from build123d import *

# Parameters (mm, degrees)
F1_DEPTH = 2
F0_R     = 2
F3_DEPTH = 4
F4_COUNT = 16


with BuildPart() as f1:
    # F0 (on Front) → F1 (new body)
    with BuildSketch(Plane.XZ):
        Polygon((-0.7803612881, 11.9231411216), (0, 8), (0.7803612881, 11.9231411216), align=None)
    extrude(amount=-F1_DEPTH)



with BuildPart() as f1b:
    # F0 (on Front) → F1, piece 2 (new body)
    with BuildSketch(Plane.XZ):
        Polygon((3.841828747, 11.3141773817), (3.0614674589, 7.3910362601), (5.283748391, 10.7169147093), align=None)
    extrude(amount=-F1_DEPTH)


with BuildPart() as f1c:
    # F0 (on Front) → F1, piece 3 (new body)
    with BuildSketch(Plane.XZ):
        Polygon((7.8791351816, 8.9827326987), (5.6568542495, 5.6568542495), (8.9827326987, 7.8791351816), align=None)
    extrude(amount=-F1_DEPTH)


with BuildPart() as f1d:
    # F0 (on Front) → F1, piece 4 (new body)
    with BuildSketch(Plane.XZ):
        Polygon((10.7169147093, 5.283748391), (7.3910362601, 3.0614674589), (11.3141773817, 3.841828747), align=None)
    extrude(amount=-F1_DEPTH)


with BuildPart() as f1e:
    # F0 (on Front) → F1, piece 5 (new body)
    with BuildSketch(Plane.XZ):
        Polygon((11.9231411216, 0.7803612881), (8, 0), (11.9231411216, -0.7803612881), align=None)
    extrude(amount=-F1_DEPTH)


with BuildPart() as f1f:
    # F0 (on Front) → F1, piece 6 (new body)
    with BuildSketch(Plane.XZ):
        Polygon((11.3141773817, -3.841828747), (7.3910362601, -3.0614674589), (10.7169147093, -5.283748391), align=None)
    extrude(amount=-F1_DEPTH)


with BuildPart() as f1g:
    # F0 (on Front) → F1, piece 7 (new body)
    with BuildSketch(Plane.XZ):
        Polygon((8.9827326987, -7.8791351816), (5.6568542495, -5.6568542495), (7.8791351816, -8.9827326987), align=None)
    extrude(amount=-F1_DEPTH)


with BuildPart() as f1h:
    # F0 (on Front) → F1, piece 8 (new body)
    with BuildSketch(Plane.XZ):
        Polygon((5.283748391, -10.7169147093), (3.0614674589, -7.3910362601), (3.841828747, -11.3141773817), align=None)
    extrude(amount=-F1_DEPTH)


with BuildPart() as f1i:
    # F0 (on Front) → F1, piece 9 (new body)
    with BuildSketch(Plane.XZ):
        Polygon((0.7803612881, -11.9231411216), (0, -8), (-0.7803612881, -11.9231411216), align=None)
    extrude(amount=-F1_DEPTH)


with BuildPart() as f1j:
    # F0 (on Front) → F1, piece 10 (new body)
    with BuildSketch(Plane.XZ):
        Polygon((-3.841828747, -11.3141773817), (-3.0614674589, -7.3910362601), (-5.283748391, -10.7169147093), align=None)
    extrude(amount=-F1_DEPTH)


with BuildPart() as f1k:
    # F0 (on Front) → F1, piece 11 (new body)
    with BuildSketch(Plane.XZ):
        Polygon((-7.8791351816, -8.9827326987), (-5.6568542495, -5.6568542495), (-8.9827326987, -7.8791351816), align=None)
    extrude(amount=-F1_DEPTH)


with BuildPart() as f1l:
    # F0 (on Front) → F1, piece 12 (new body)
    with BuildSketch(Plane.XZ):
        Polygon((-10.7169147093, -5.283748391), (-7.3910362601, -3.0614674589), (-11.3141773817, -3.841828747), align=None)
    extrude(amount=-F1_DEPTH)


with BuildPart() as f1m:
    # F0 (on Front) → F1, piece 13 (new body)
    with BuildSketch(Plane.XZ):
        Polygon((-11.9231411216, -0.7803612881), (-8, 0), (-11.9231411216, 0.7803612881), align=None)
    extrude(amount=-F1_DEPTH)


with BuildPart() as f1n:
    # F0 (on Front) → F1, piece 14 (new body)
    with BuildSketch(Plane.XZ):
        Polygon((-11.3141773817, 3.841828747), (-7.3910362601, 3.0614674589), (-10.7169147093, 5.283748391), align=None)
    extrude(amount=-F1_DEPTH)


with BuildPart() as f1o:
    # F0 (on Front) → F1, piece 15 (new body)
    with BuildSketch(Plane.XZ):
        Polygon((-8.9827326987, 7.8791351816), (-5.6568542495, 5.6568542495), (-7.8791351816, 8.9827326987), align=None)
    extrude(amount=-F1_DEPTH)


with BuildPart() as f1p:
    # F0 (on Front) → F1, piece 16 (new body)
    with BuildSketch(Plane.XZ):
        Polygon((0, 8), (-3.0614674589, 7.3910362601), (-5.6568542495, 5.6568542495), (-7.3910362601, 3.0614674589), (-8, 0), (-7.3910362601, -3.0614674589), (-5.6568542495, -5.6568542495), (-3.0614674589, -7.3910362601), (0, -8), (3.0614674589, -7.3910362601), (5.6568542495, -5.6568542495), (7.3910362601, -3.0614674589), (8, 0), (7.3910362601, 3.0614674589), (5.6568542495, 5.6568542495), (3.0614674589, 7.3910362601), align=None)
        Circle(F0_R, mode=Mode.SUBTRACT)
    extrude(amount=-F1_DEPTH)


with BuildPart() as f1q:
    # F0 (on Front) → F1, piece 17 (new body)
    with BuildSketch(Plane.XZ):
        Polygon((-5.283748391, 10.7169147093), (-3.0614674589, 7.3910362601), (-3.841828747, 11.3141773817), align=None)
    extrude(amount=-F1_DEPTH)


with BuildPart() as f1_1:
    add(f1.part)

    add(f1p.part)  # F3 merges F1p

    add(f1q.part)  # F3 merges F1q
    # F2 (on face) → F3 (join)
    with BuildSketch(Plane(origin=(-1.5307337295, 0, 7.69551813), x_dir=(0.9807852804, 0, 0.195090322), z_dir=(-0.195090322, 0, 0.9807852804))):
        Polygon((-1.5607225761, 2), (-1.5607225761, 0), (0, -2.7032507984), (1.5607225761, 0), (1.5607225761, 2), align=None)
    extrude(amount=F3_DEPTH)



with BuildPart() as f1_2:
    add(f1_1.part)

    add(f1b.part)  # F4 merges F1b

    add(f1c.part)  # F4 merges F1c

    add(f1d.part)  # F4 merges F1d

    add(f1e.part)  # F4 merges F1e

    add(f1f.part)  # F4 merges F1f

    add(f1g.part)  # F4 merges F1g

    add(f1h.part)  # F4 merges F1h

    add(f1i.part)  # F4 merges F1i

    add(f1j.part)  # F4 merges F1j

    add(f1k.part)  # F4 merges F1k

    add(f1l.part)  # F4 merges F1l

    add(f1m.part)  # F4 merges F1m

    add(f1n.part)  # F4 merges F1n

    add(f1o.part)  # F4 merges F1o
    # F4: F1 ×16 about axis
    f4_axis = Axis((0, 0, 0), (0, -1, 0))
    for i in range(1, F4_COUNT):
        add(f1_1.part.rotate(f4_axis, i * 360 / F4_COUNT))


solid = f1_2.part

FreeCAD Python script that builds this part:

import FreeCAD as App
import Part
import Sketcher
Q = App.Units.Quantity


def add_polygon(sketch, points):
    """Adds a closed chain of lines whose ends are joined by coincident constraints."""
    first, n = sketch.GeometryCount, len(points)
    for a, b in zip(points, points[1:] + points[:1]):
        sketch.addGeometry(Part.LineSegment(App.Vector(*a, 0), App.Vector(*b, 0)), False)
    for i in range(n):
        sketch.addConstraint(Sketcher.Constraint("Coincident", first + i, 2, first + (i + 1) % n, 1))

doc = App.newDocument("Part")
body = doc.addObject("PartDesign::Body", "Body")

sketch1 = body.newObject("Sketcher::SketchObject", "Sketch")
sketch1.AttachmentSupport = (doc.getObject("XZ_Plane"), [""])
sketch1.MapMode = "FlatFace"
add_polygon(sketch1, [(-0.780361, 11.923141), (0, 8), (0.780361, 11.923141)])
sketch1.addConstraint([
    Sketcher.Constraint("Horizontal", 2),
    Sketcher.Constraint("PointOnObject", 0, 2, -2),
    Sketcher.Constraint("Equal", 0, 1),
    Sketcher.Constraint("Distance", 0, Q("4 mm")),
    Sketcher.Constraint("DistanceY", -1, 1, 0, 2, Q("8 mm")),
    Sketcher.Constraint("Angle", 0, Q("-78.75 deg")),
])
pad1 = body.newObject("PartDesign::Pad", "Pad")
pad1.Profile = sketch1
pad1.Length = 2
pad1.Reversed = True
body2 = doc.addObject("PartDesign::Body", "Body001")

sketch2 = body2.newObject("Sketcher::SketchObject", "Sketch001")
sketch2.AttachmentSupport = (doc.getObject("XZ_Plane001"), [""])
sketch2.MapMode = "FlatFace"
add_polygon(sketch2, [(3.841829, 11.314177), (3.061467, 7.391036), (5.283748, 10.716915)])
sketch2.addConstraint([
    Sketcher.Constraint("Equal", 0, 1),
    Sketcher.Constraint("Distance", 0, Q("4 mm")),
    Sketcher.Constraint("Angle", 2, Q("157.5 deg")),
    Sketcher.Constraint("Angle", 0, Q("-101.25 deg")),
    Sketcher.Constraint("DistanceX", -1, 1, 1, 2, Q("5.283748 mm")),
    Sketcher.Constraint("DistanceY", -1, 1, 0, 2, Q("7.391036 mm")),
])
pad2 = body2.newObject("PartDesign::Pad", "Pad001")
pad2.Profile = sketch2
pad2.Length = 2
pad2.Reversed = True
body3 = doc.addObject("PartDesign::Body", "Body002")

sketch3 = body3.newObject("Sketcher::SketchObject", "Sketch002")
sketch3.AttachmentSupport = (doc.getObject("XZ_Plane002"), [""])
sketch3.MapMode = "FlatFace"
add_polygon(sketch3, [(7.879135, 8.982733), (5.656854, 5.656854), (8.982733, 7.879135)])
sketch3.addConstraint([
    Sketcher.Constraint("Equal", 0, 1),
    Sketcher.Constraint("Angle", 2, Q("135 deg")),
    Sketcher.Constraint("Distance", 0, Q("4 mm")),
    Sketcher.Constraint("Angle", 0, Q("-123.75 deg")),
    Sketcher.Constraint("DistanceX", -1, 1, 0, 2, Q("5.656854 mm")),
    Sketcher.Constraint("DistanceY", -1, 1, 0, 2, Q("5.656854 mm")),
])
pad3 = body3.newObject("PartDesign::Pad", "Pad002")
pad3.Profile = sketch3
pad3.Length = 2
pad3.Reversed = True
body4 = doc.addObject("PartDesign::Body", "Body003")

sketch4 = body4.newObject("Sketcher::SketchObject", "Sketch003")
sketch4.AttachmentSupport = (doc.getObject("XZ_Plane003"), [""])
sketch4.MapMode = "FlatFace"
add_polygon(sketch4, [(10.716915, 5.283748), (7.391036, 3.061467), (11.314177, 3.841829)])
sketch4.addConstraint([
    Sketcher.Constraint("Equal", 0, 1),
    Sketcher.Constraint("Distance", 0, Q("4 mm")),
    Sketcher.Constraint("Angle", 2, Q("112.5 deg")),
    Sketcher.Constraint("Angle", 0, Q("-146.25 deg")),
    Sketcher.Constraint("DistanceY", -1, 1, 1, 2, Q("3.841829 mm")),
    Sketcher.Constraint("DistanceX", -1, 1, 0, 2, Q("7.391036 mm")),
])
pad4 = body4.newObject("PartDesign::Pad", "Pad003")
pad4.Profile = sketch4
pad4.Length = 2
pad4.Reversed = True
body5 = doc.addObject("PartDesign::Body", "Body004")

sketch5 = body5.newObject("Sketcher::SketchObject", "Sketch004")
sketch5.AttachmentSupport = (doc.getObject("XZ_Plane004"), [""])
sketch5.MapMode = "FlatFace"
add_polygon(sketch5, [(11.923141, 0.780361), (8, 0), (11.923141, -0.780361)])
sketch5.addConstraint([
    Sketcher.Constraint("Vertical", 2),
    Sketcher.Constraint("PointOnObject", 0, 2, -1),
    Sketcher.Constraint("Equal", 0, 1),
    Sketcher.Constraint("Distance", 0, Q("4 mm")),
    Sketcher.Constraint("DistanceX", -1, 1, 0, 2, Q("8 mm")),
    Sketcher.Constraint("Angle", 0, Q("-168.75 deg")),
])
pad5 = body5.newObject("PartDesign::Pad", "Pad004")
pad5.Profile = sketch5
pad5.Length = 2
pad5.Reversed = True
body6 = doc.addObject("PartDesign::Body", "Body005")

sketch6 = body6.newObject("Sketcher::SketchObject", "Sketch005")
sketch6.AttachmentSupport = (doc.getObject("XZ_Plane005"), [""])
sketch6.MapMode = "FlatFace"
add_polygon(sketch6, [(11.314177, -3.841829), (7.391036, -3.061467), (10.716915, -5.283748)])
sketch6.addConstraint([
    Sketcher.Constraint("Equal", 0, 1),
    Sketcher.Constraint("Distance", 0, Q("4 mm")),
    Sketcher.Constraint("Angle", 2, Q("67.5 deg")),
    Sketcher.Constraint("Angle", 0, Q("168.75 deg")),
    Sketcher.Constraint("DistanceY", 1, 2, -1, 1, Q("5.283748 mm")),
    Sketcher.Constraint("DistanceX", -1, 1, 0, 2, Q("7.391036 mm")),
])
pad6 = body6.newObject("PartDesign::Pad", "Pad005")
pad6.Profile = sketch6
pad6.Length = 2
pad6.Reversed = True
body7 = doc.addObject("PartDesign::Body", "Body006")

sketch7 = body7.newObject("Sketcher::SketchObject", "Sketch006")
sketch7.AttachmentSupport = (doc.getObject("XZ_Plane006"), [""])
sketch7.MapMode = "FlatFace"
add_polygon(sketch7, [(8.982733, -7.879135), (5.656854, -5.656854), (7.879135, -8.982733)])
sketch7.addConstraint([
    Sketcher.Constraint("Equal", 0, 1),
    Sketcher.Constraint("Angle", 2, Q("45 deg")),
    Sketcher.Constraint("Distance", 0, Q("4 mm")),
    Sketcher.Constraint("Angle", 0, Q("146.25 deg")),
    Sketcher.Constraint("DistanceX", -1, 1, 0, 2, Q("5.656854 mm")),
    Sketcher.Constraint("DistanceY", 0, 2, -1, 1, Q("5.656854 mm")),
])
pad7 = body7.newObject("PartDesign::Pad", "Pad006")
pad7.Profile = sketch7
pad7.Length = 2
pad7.Reversed = True
body8 = doc.addObject("PartDesign::Body", "Body007")

sketch8 = body8.newObject("Sketcher::SketchObject", "Sketch007")
sketch8.AttachmentSupport = (doc.getObject("XZ_Plane007"), [""])
sketch8.MapMode = "FlatFace"
add_polygon(sketch8, [(5.283748, -10.716915), (3.061467, -7.391036), (3.841829, -11.314177)])
sketch8.addConstraint([
    Sketcher.Constraint("Equal", 0, 1),
    Sketcher.Constraint("Distance", 0, Q("4 mm")),
    Sketcher.Constraint("Angle", 2, Q("22.5 deg")),
    Sketcher.Constraint("Angle", 0, Q("123.75 deg")),
    Sketcher.Constraint("DistanceX", -1, 1, 1, 2, Q("3.841829 mm")),
    Sketcher.Constraint("DistanceY", 0, 2, -1, 1, Q("7.391036 mm")),
])
pad8 = body8.newObject("PartDesign::Pad", "Pad007")
pad8.Profile = sketch8
pad8.Length = 2
pad8.Reversed = True
body9 = doc.addObject("PartDesign::Body", "Body008")

sketch9 = body9.newObject("Sketcher::SketchObject", "Sketch008")
sketch9.AttachmentSupport = (doc.getObject("XZ_Plane008"), [""])
sketch9.MapMode = "FlatFace"
add_polygon(sketch9, [(0.780361, -11.923141), (0, -8), (-0.780361, -11.923141)])
sketch9.addConstraint([
    Sketcher.Constraint("Horizontal", 2),
    Sketcher.Constraint("PointOnObject", 0, 2, -2),
    Sketcher.Constraint("Equal", 0, 1),
    Sketcher.Constraint("Distance", 0, Q("4 mm")),
    Sketcher.Constraint("DistanceY", 0, 2, -1, 1, Q("8 mm")),
    Sketcher.Constraint("Angle", 0, Q("101.25 deg")),
])
pad9 = body9.newObject("PartDesign::Pad", "Pad008")
pad9.Profile = sketch9
pad9.Length = 2
pad9.Reversed = True
body10 = doc.addObject("PartDesign::Body", "Body009")

sketch10 = body10.newObject("Sketcher::SketchObject", "Sketch009")
sketch10.AttachmentSupport = (doc.getObject("XZ_Plane009"), [""])
sketch10.MapMode = "FlatFace"
add_polygon(sketch10, [(-3.841829, -11.314177), (-3.061467, -7.391036), (-5.283748, -10.716915)])
sketch10.addConstraint([
    Sketcher.Constraint("Equal", 0, 1),
    Sketcher.Constraint("Distance", 0, Q("4 mm")),
    Sketcher.Constraint("Angle", 2, Q("-22.5 deg")),
    Sketcher.Constraint("Angle", 0, Q("78.75 deg")),
    Sketcher.Constraint("DistanceX", 1, 2, -1, 1, Q("5.283748 mm")),
    Sketcher.Constraint("DistanceY", 0, 2, -1, 1, Q("7.391036 mm")),
])
pad10 = body10.newObject("PartDesign::Pad", "Pad009")
pad10.Profile = sketch10
pad10.Length = 2
pad10.Reversed = True
body11 = doc.addObject("PartDesign::Body", "Body010")

sketch11 = body11.newObject("Sketcher::SketchObject", "Sketch010")
sketch11.AttachmentSupport = (doc.getObject("XZ_Plane010"), [""])
sketch11.MapMode = "FlatFace"
add_polygon(sketch11, [(-7.879135, -8.982733), (-5.656854, -5.656854), (-8.982733, -7.879135)])
sketch11.addConstraint([
    Sketcher.Constraint("Equal", 0, 1),
    Sketcher.Constraint("Angle", 2, Q("-45 deg")),
    Sketcher.Constraint("Distance", 0, Q("4 mm")),
    Sketcher.Constraint("Angle", 0, Q("56.25 deg")),
    Sketcher.Constraint("DistanceX", 0, 2, -1, 1, Q("5.656854 mm")),
    Sketcher.Constraint("DistanceY", 0, 2, -1, 1, Q("5.656854 mm")),
])
pad11 = body11.newObject("PartDesign::Pad", "Pad010")
pad11.Profile = sketch11
pad11.Length = 2
pad11.Reversed = True
body12 = doc.addObject("PartDesign::Body", "Body011")

sketch12 = body12.newObject("Sketcher::SketchObject", "Sketch011")
sketch12.AttachmentSupport = (doc.getObject("XZ_Plane011"), [""])
sketch12.MapMode = "FlatFace"
add_polygon(sketch12, [(-10.716915, -5.283748), (-7.391036, -3.061467), (-11.314177, -3.841829)])
sketch12.addConstraint([
    Sketcher.Constraint("Equal", 0, 1),
    Sketcher.Constraint("Distance", 0, Q("4 mm")),
    Sketcher.Constraint("Angle", 2, Q("-67.5 deg")),
    Sketcher.Constraint("Angle", 0, Q("33.75 deg")),
    Sketcher.Constraint("DistanceY", 1, 2, -1, 1, Q("3.841829 mm")),
    Sketcher.Constraint("DistanceX", 0, 2, -1, 1, Q("7.391036 mm")),
])
pad12 = body12.newObject("PartDesign::Pad", "Pad011")
pad12.Profile = sketch12
pad12.Length = 2
pad12.Reversed = True
body13 = doc.addObject("PartDesign::Body", "Body012")

sketch13 = body13.newObject("Sketcher::SketchObject", "Sketch012")
sketch13.AttachmentSupport = (doc.getObject("XZ_Plane012"), [""])
sketch13.MapMode = "FlatFace"
add_polygon(sketch13, [(-11.923141, -0.780361), (-8, 0), (-11.923141, 0.780361)])
sketch13.addConstraint([
    Sketcher.Constraint("Vertical", 2),
    Sketcher.Constraint("PointOnObject", 0, 2, -1),
    Sketcher.Constraint("Equal", 0, 1),
    Sketcher.Constraint("Distance", 0, Q("4 mm")),
    Sketcher.Constraint("DistanceX", 0, 2, -1, 1, Q("8 mm")),
    Sketcher.Constraint("Angle", 0, Q("11.25 deg")),
])
pad13 = body13.newObject("PartDesign::Pad", "Pad012")
pad13.Profile = sketch13
pad13.Length = 2
pad13.Reversed = True
body14 = doc.addObject("PartDesign::Body", "Body013")

sketch14 = body14.newObject("Sketcher::SketchObject", "Sketch013")
sketch14.AttachmentSupport = (doc.getObject("XZ_Plane013"), [""])
sketch14.MapMode = "FlatFace"
add_polygon(sketch14, [(-11.314177, 3.841829), (-7.391036, 3.061467), (-10.716915, 5.283748)])
sketch14.addConstraint([
    Sketcher.Constraint("Equal", 0, 1),
    Sketcher.Constraint("Distance", 0, Q("4 mm")),
    Sketcher.Constraint("Angle", 2, Q("-112.5 deg")),
    Sketcher.Constraint("Angle", 0, Q("-11.25 deg")),
    Sketcher.Constraint("DistanceY", -1, 1, 1, 2, Q("5.283748 mm")),
    Sketcher.Constraint("DistanceX", 0, 2, -1, 1, Q("7.391036 mm")),
])
pad14 = body14.newObject("PartDesign::Pad", "Pad013")
pad14.Profile = sketch14
pad14.Length = 2
pad14.Reversed = True
body15 = doc.addObject("PartDesign::Body", "Body014")

sketch15 = body15.newObject("Sketcher::SketchObject", "Sketch014")
sketch15.AttachmentSupport = (doc.getObject("XZ_Plane014"), [""])
sketch15.MapMode = "FlatFace"
add_polygon(sketch15, [(-8.982733, 7.879135), (-5.656854, 5.656854), (-7.879135, 8.982733)])
sketch15.addConstraint([
    Sketcher.Constraint("Equal", 0, 1),
    Sketcher.Constraint("Angle", 2, Q("-135 deg")),
    Sketcher.Constraint("Distance", 0, Q("4 mm")),
    Sketcher.Constraint("Angle", 0, Q("-33.75 deg")),
    Sketcher.Constraint("DistanceX", 0, 2, -1, 1, Q("5.656854 mm")),
    Sketcher.Constraint("DistanceY", -1, 1, 0, 2, Q("5.656854 mm")),
])
pad15 = body15.newObject("PartDesign::Pad", "Pad014")
pad15.Profile = sketch15
pad15.Length = 2
pad15.Reversed = True
body16 = doc.addObject("PartDesign::Body", "Body015")

sketch16 = body16.newObject("Sketcher::SketchObject", "Sketch015")
sketch16.AttachmentSupport = (doc.getObject("XZ_Plane015"), [""])
sketch16.MapMode = "FlatFace"
add_polygon(sketch16, [(0, 8), (-3.061467, 7.391036), (-5.656854, 5.656854), (-7.391036, 3.061467), (-8, 0), (-7.391036, -3.061467), (-5.656854, -5.656854), (-3.061467, -7.391036), (0, -8), (3.061467, -7.391036), (5.656854, -5.656854), (7.391036, -3.061467), (8, 0), (7.391036, 3.061467), (5.656854, 5.656854), (3.061467, 7.391036)])
sketch16.addGeometry(Part.Circle(App.Vector(0, 0, 0), App.Vector(0, 0, 1), 2), False)
sketch16.addConstraint([
    Sketcher.Constraint("Coincident", 16, 3, -1, 1),
    Sketcher.Constraint("Symmetric", 0, 2, 8, 2, -1, 1),
    Sketcher.Constraint("Symmetric", 1, 2, 9, 2, -1, 1),
    Sketcher.Constraint("Symmetric", 2, 2, 10, 2, -1, 1),
    Sketcher.Constraint("Symmetric", 3, 2, 11, 2, -1, 1),
    Sketcher.Constraint("Symmetric", 4, 2, 12, 2, -1, 1),
    Sketcher.Constraint("Symmetric", 5, 2, 13, 2, -1, 1),
    Sketcher.Constraint("Symmetric", 6, 2, 14, 2, -1, 1),
    Sketcher.Constraint("Symmetric", 7, 2, 15, 2, -1, 1),
    Sketcher.Constraint("Symmetric", 6, 2, 8, 2, -2),
    Sketcher.Constraint("Symmetric", 5, 2, 9, 2, -2),
    Sketcher.Constraint("Symmetric", 4, 2, 10, 2, -2),
    Sketcher.Constraint("PointOnObject", 3, 2, -1),
    Sketcher.Constraint("PointOnObject", 7, 2, -2),
    Sketcher.Constraint("Perpendicular", 0, 4),
    Sketcher.Constraint("Perpendicular", 1, 5),
    Sketcher.Constraint("Equal", 0, 1),
    Sketcher.Constraint("Equal", 1, 2),
    Sketcher.Constraint("Equal", 2, 3),
    Sketcher.Constraint("Diameter", 16, Q("4 mm")),
    Sketcher.Constraint("DistanceX", 3, 2, -1, 1, Q("8 mm")),
    Sketcher.Constraint("Angle", 0, Q("-168.75 deg")),
    Sketcher.Constraint("Angle", 1, Q("-146.25 deg")),
])
pad16 = body16.newObject("PartDesign::Pad", "Pad015")
pad16.Profile = sketch16
pad16.Length = 2
pad16.Reversed = True
body17 = doc.addObject("PartDesign::Body", "Body016")

sketch17 = body17.newObject("Sketcher::SketchObject", "Sketch016")
sketch17.AttachmentSupport = (doc.getObject("XZ_Plane016"), [""])
sketch17.MapMode = "FlatFace"
add_polygon(sketch17, [(-5.283748, 10.716915), (-3.061467, 7.391036), (-3.841829, 11.314177)])
sketch17.addConstraint([
    Sketcher.Constraint("Equal", 0, 1),
    Sketcher.Constraint("Distance", 0, Q("4 mm")),
    Sketcher.Constraint("Angle", 2, Q("-157.5 deg")),
    Sketcher.Constraint("Angle", 0, Q("-56.25 deg")),
    Sketcher.Constraint("DistanceX", 1, 2, -1, 1, Q("3.841829 mm")),
    Sketcher.Constraint("DistanceY", -1, 1, 0, 2, Q("7.391036 mm")),
])
pad17 = body17.newObject("PartDesign::Pad", "Pad016")
pad17.Profile = sketch17
pad17.Length = 2
pad17.Reversed = True
body.AllowCompound = True
doc.recompute()

boolean = body.newObject("PartDesign::Boolean", "Boolean")
boolean.Type = "Fuse"
boolean.addObjects([body16])
doc.recompute()

boolean2 = body.newObject("PartDesign::Boolean", "Boolean001")
boolean2.Type = "Fuse"
boolean2.addObjects([body17])

sketch18 = body.newObject("Sketcher::SketchObject", "Sketch017")
sketch18.Placement = App.Placement(App.Vector(-1.530734, 0, 7.695518), App.Rotation(App.Vector(0.98078528, 0, 0.195090322), App.Vector(0, 0.999999999, 0), App.Vector(-0.195090322, 0, 0.98078528), "ZXY"))
add_polygon(sketch18, [(-1.560723, 2), (-1.560723, 0), (0, -2.703251), (1.560723, 0), (1.560723, 2)])
sketch18.addConstraint([
    Sketcher.Constraint("Vertical", 0),
    Sketcher.Constraint("Vertical", 3),
    Sketcher.Constraint("Horizontal", 4),
    Sketcher.Constraint("Symmetric", 0, 2, 2, 2, -1, 1),
    Sketcher.Constraint("PointOnObject", 0, 2, -1),
    Sketcher.Constraint("PointOnObject", 1, 2, -2),
    Sketcher.Constraint("DistanceY", 0, 2, 0, 1, Q("2 mm")),
    Sketcher.Constraint("Angle", 1, Q("-60 deg")),
    Sketcher.Constraint("DistanceX", 4, 2, 4, 1, Q("3.121445 mm")),
])
pad18 = body.newObject("PartDesign::Pad", "Pad017")
pad18.Profile = sketch18
pad18.Length = 4
body18 = doc.addObject("PartDesign::Body", "Body017")
body18.AllowCompound = True
doc.recompute()

body18.BaseFeature = body
doc.recompute()

boolean3 = body18.newObject("PartDesign::Boolean", "Boolean002")
boolean3.Type = "Fuse"
boolean3.addObjects([body2])
doc.recompute()

boolean4 = body18.newObject("PartDesign::Boolean", "Boolean003")
boolean4.Type = "Fuse"
boolean4.addObjects([body3])
doc.recompute()

boolean5 = body18.newObject("PartDesign::Boolean", "Boolean004")
boolean5.Type = "Fuse"
boolean5.addObjects([body4])
doc.recompute()

boolean6 = body18.newObject("PartDesign::Boolean", "Boolean005")
boolean6.Type = "Fuse"
boolean6.addObjects([body5])
doc.recompute()

boolean7 = body18.newObject("PartDesign::Boolean", "Boolean006")
boolean7.Type = "Fuse"
boolean7.addObjects([body6])
doc.recompute()

boolean8 = body18.newObject("PartDesign::Boolean", "Boolean007")
boolean8.Type = "Fuse"
boolean8.addObjects([body7])
doc.recompute()

boolean9 = body18.newObject("PartDesign::Boolean", "Boolean008")
boolean9.Type = "Fuse"
boolean9.addObjects([body8])
doc.recompute()

boolean10 = body18.newObject("PartDesign::Boolean", "Boolean009")
boolean10.Type = "Fuse"
boolean10.addObjects([body9])
doc.recompute()

boolean11 = body18.newObject("PartDesign::Boolean", "Boolean010")
boolean11.Type = "Fuse"
boolean11.addObjects([body10])
doc.recompute()

boolean12 = body18.newObject("PartDesign::Boolean", "Boolean011")
boolean12.Type = "Fuse"
boolean12.addObjects([body11])
doc.recompute()

boolean13 = body18.newObject("PartDesign::Boolean", "Boolean012")
boolean13.Type = "Fuse"
boolean13.addObjects([body12])
doc.recompute()

boolean14 = body18.newObject("PartDesign::Boolean", "Boolean013")
boolean14.Type = "Fuse"
boolean14.addObjects([body13])
doc.recompute()

boolean15 = body18.newObject("PartDesign::Boolean", "Boolean014")
boolean15.Type = "Fuse"
boolean15.addObjects([body14])
doc.recompute()

boolean16 = body18.newObject("PartDesign::Boolean", "Boolean015")
boolean16.Type = "Fuse"
boolean16.addObjects([body15])
doc.recompute()

body19 = doc.addObject("PartDesign::Body", "Body018")
body19.BaseFeature = body
body19.Placement = App.Placement(App.Vector(0, 0, 0), App.Rotation(App.Vector(0, -1, 0), 22.5))
boolean17 = body18.newObject("PartDesign::Boolean", "Boolean016")
boolean17.Type = "Fuse"
boolean17.addObjects([body19])
doc.recompute()

body20 = doc.addObject("PartDesign::Body", "Body019")
body20.BaseFeature = body
body20.Placement = App.Placement(App.Vector(0, 0, 0), App.Rotation(App.Vector(0, -1, 0), 45))
boolean18 = body18.newObject("PartDesign::Boolean", "Boolean017")
boolean18.Type = "Fuse"
boolean18.addObjects([body20])
doc.recompute()

body21 = doc.addObject("PartDesign::Body", "Body020")
body21.BaseFeature = body
body21.Placement = App.Placement(App.Vector(0, 0, 0), App.Rotation(App.Vector(0, -1, 0), 67.5))
boolean19 = body18.newObject("PartDesign::Boolean", "Boolean018")
boolean19.Type = "Fuse"
boolean19.addObjects([body21])
doc.recompute()

body22 = doc.addObject("PartDesign::Body", "Body021")
body22.BaseFeature = body
body22.Placement = App.Placement(App.Vector(0, 0, 0), App.Rotation(App.Vector(0, -1, 0), 90))
boolean20 = body18.newObject("PartDesign::Boolean", "Boolean019")
boolean20.Type = "Fuse"
boolean20.addObjects([body22])
doc.recompute()

body23 = doc.addObject("PartDesign::Body", "Body022")
body23.BaseFeature = body
body23.Placement = App.Placement(App.Vector(0, 0, 0), App.Rotation(App.Vector(0, -1, 0), 112.5))
boolean21 = body18.newObject("PartDesign::Boolean", "Boolean020")
boolean21.Type = "Fuse"
boolean21.addObjects([body23])
doc.recompute()

body24 = doc.addObject("PartDesign::Body", "Body023")
body24.BaseFeature = body
body24.Placement = App.Placement(App.Vector(0, 0, 0), App.Rotation(App.Vector(0, -1, 0), 135))
boolean22 = body18.newObject("PartDesign::Boolean", "Boolean021")
boolean22.Type = "Fuse"
boolean22.addObjects([body24])
doc.recompute()

body25 = doc.addObject("PartDesign::Body", "Body024")
body25.BaseFeature = body
body25.Placement = App.Placement(App.Vector(0, 0, 0), App.Rotation(App.Vector(0, -1, 0), 157.5))
boolean23 = body18.newObject("PartDesign::Boolean", "Boolean022")
boolean23.Type = "Fuse"
boolean23.addObjects([body25])
doc.recompute()

body26 = doc.addObject("PartDesign::Body", "Body025")
body26.BaseFeature = body
body26.Placement = App.Placement(App.Vector(0, 0, 0), App.Rotation(App.Vector(0, -1, 0), 180))
boolean24 = body18.newObject("PartDesign::Boolean", "Boolean023")
boolean24.Type = "Fuse"
boolean24.addObjects([body26])
doc.recompute()

body27 = doc.addObject("PartDesign::Body", "Body026")
body27.BaseFeature = body
body27.Placement = App.Placement(App.Vector(0, 0, 0), App.Rotation(App.Vector(0, -1, 0), 202.5))
boolean25 = body18.newObject("PartDesign::Boolean", "Boolean024")
boolean25.Type = "Fuse"
boolean25.addObjects([body27])
doc.recompute()

body28 = doc.addObject("PartDesign::Body", "Body027")
body28.BaseFeature = body
body28.Placement = App.Placement(App.Vector(0, 0, 0), App.Rotation(App.Vector(0, -1, 0), 225))
boolean26 = body18.newObject("PartDesign::Boolean", "Boolean025")
boolean26.Type = "Fuse"
boolean26.addObjects([body28])
doc.recompute()

body29 = doc.addObject("PartDesign::Body", "Body028")
body29.BaseFeature = body
body29.Placement = App.Placement(App.Vector(0, 0, 0), App.Rotation(App.Vector(0, -1, 0), 247.5))
boolean27 = body18.newObject("PartDesign::Boolean", "Boolean026")
boolean27.Type = "Fuse"
boolean27.addObjects([body29])
doc.recompute()

body30 = doc.addObject("PartDesign::Body", "Body029")
body30.BaseFeature = body
body30.Placement = App.Placement(App.Vector(0, 0, 0), App.Rotation(App.Vector(0, -1, 0), 270))
boolean28 = body18.newObject("PartDesign::Boolean", "Boolean027")
boolean28.Type = "Fuse"
boolean28.addObjects([body30])
doc.recompute()

body31 = doc.addObject("PartDesign::Body", "Body030")
body31.BaseFeature = body
body31.Placement = App.Placement(App.Vector(0, 0, 0), App.Rotation(App.Vector(0, -1, 0), 292.5))
boolean29 = body18.newObject("PartDesign::Boolean", "Boolean028")
boolean29.Type = "Fuse"
boolean29.addObjects([body31])
doc.recompute()

body32 = doc.addObject("PartDesign::Body", "Body031")
body32.BaseFeature = body
body32.Placement = App.Placement(App.Vector(0, 0, 0), App.Rotation(App.Vector(0, -1, 0), 315))
boolean30 = body18.newObject("PartDesign::Boolean", "Boolean029")
boolean30.Type = "Fuse"
boolean30.addObjects([body32])
doc.recompute()

body.Placement = App.Placement(App.Vector(0, 0, 0), App.Rotation(App.Vector(0, -1, 0), 337.5))
boolean31 = body18.newObject("PartDesign::Boolean", "Boolean030")
boolean31.Type = "Fuse"
boolean31.addObjects([body])

doc.recompute()
